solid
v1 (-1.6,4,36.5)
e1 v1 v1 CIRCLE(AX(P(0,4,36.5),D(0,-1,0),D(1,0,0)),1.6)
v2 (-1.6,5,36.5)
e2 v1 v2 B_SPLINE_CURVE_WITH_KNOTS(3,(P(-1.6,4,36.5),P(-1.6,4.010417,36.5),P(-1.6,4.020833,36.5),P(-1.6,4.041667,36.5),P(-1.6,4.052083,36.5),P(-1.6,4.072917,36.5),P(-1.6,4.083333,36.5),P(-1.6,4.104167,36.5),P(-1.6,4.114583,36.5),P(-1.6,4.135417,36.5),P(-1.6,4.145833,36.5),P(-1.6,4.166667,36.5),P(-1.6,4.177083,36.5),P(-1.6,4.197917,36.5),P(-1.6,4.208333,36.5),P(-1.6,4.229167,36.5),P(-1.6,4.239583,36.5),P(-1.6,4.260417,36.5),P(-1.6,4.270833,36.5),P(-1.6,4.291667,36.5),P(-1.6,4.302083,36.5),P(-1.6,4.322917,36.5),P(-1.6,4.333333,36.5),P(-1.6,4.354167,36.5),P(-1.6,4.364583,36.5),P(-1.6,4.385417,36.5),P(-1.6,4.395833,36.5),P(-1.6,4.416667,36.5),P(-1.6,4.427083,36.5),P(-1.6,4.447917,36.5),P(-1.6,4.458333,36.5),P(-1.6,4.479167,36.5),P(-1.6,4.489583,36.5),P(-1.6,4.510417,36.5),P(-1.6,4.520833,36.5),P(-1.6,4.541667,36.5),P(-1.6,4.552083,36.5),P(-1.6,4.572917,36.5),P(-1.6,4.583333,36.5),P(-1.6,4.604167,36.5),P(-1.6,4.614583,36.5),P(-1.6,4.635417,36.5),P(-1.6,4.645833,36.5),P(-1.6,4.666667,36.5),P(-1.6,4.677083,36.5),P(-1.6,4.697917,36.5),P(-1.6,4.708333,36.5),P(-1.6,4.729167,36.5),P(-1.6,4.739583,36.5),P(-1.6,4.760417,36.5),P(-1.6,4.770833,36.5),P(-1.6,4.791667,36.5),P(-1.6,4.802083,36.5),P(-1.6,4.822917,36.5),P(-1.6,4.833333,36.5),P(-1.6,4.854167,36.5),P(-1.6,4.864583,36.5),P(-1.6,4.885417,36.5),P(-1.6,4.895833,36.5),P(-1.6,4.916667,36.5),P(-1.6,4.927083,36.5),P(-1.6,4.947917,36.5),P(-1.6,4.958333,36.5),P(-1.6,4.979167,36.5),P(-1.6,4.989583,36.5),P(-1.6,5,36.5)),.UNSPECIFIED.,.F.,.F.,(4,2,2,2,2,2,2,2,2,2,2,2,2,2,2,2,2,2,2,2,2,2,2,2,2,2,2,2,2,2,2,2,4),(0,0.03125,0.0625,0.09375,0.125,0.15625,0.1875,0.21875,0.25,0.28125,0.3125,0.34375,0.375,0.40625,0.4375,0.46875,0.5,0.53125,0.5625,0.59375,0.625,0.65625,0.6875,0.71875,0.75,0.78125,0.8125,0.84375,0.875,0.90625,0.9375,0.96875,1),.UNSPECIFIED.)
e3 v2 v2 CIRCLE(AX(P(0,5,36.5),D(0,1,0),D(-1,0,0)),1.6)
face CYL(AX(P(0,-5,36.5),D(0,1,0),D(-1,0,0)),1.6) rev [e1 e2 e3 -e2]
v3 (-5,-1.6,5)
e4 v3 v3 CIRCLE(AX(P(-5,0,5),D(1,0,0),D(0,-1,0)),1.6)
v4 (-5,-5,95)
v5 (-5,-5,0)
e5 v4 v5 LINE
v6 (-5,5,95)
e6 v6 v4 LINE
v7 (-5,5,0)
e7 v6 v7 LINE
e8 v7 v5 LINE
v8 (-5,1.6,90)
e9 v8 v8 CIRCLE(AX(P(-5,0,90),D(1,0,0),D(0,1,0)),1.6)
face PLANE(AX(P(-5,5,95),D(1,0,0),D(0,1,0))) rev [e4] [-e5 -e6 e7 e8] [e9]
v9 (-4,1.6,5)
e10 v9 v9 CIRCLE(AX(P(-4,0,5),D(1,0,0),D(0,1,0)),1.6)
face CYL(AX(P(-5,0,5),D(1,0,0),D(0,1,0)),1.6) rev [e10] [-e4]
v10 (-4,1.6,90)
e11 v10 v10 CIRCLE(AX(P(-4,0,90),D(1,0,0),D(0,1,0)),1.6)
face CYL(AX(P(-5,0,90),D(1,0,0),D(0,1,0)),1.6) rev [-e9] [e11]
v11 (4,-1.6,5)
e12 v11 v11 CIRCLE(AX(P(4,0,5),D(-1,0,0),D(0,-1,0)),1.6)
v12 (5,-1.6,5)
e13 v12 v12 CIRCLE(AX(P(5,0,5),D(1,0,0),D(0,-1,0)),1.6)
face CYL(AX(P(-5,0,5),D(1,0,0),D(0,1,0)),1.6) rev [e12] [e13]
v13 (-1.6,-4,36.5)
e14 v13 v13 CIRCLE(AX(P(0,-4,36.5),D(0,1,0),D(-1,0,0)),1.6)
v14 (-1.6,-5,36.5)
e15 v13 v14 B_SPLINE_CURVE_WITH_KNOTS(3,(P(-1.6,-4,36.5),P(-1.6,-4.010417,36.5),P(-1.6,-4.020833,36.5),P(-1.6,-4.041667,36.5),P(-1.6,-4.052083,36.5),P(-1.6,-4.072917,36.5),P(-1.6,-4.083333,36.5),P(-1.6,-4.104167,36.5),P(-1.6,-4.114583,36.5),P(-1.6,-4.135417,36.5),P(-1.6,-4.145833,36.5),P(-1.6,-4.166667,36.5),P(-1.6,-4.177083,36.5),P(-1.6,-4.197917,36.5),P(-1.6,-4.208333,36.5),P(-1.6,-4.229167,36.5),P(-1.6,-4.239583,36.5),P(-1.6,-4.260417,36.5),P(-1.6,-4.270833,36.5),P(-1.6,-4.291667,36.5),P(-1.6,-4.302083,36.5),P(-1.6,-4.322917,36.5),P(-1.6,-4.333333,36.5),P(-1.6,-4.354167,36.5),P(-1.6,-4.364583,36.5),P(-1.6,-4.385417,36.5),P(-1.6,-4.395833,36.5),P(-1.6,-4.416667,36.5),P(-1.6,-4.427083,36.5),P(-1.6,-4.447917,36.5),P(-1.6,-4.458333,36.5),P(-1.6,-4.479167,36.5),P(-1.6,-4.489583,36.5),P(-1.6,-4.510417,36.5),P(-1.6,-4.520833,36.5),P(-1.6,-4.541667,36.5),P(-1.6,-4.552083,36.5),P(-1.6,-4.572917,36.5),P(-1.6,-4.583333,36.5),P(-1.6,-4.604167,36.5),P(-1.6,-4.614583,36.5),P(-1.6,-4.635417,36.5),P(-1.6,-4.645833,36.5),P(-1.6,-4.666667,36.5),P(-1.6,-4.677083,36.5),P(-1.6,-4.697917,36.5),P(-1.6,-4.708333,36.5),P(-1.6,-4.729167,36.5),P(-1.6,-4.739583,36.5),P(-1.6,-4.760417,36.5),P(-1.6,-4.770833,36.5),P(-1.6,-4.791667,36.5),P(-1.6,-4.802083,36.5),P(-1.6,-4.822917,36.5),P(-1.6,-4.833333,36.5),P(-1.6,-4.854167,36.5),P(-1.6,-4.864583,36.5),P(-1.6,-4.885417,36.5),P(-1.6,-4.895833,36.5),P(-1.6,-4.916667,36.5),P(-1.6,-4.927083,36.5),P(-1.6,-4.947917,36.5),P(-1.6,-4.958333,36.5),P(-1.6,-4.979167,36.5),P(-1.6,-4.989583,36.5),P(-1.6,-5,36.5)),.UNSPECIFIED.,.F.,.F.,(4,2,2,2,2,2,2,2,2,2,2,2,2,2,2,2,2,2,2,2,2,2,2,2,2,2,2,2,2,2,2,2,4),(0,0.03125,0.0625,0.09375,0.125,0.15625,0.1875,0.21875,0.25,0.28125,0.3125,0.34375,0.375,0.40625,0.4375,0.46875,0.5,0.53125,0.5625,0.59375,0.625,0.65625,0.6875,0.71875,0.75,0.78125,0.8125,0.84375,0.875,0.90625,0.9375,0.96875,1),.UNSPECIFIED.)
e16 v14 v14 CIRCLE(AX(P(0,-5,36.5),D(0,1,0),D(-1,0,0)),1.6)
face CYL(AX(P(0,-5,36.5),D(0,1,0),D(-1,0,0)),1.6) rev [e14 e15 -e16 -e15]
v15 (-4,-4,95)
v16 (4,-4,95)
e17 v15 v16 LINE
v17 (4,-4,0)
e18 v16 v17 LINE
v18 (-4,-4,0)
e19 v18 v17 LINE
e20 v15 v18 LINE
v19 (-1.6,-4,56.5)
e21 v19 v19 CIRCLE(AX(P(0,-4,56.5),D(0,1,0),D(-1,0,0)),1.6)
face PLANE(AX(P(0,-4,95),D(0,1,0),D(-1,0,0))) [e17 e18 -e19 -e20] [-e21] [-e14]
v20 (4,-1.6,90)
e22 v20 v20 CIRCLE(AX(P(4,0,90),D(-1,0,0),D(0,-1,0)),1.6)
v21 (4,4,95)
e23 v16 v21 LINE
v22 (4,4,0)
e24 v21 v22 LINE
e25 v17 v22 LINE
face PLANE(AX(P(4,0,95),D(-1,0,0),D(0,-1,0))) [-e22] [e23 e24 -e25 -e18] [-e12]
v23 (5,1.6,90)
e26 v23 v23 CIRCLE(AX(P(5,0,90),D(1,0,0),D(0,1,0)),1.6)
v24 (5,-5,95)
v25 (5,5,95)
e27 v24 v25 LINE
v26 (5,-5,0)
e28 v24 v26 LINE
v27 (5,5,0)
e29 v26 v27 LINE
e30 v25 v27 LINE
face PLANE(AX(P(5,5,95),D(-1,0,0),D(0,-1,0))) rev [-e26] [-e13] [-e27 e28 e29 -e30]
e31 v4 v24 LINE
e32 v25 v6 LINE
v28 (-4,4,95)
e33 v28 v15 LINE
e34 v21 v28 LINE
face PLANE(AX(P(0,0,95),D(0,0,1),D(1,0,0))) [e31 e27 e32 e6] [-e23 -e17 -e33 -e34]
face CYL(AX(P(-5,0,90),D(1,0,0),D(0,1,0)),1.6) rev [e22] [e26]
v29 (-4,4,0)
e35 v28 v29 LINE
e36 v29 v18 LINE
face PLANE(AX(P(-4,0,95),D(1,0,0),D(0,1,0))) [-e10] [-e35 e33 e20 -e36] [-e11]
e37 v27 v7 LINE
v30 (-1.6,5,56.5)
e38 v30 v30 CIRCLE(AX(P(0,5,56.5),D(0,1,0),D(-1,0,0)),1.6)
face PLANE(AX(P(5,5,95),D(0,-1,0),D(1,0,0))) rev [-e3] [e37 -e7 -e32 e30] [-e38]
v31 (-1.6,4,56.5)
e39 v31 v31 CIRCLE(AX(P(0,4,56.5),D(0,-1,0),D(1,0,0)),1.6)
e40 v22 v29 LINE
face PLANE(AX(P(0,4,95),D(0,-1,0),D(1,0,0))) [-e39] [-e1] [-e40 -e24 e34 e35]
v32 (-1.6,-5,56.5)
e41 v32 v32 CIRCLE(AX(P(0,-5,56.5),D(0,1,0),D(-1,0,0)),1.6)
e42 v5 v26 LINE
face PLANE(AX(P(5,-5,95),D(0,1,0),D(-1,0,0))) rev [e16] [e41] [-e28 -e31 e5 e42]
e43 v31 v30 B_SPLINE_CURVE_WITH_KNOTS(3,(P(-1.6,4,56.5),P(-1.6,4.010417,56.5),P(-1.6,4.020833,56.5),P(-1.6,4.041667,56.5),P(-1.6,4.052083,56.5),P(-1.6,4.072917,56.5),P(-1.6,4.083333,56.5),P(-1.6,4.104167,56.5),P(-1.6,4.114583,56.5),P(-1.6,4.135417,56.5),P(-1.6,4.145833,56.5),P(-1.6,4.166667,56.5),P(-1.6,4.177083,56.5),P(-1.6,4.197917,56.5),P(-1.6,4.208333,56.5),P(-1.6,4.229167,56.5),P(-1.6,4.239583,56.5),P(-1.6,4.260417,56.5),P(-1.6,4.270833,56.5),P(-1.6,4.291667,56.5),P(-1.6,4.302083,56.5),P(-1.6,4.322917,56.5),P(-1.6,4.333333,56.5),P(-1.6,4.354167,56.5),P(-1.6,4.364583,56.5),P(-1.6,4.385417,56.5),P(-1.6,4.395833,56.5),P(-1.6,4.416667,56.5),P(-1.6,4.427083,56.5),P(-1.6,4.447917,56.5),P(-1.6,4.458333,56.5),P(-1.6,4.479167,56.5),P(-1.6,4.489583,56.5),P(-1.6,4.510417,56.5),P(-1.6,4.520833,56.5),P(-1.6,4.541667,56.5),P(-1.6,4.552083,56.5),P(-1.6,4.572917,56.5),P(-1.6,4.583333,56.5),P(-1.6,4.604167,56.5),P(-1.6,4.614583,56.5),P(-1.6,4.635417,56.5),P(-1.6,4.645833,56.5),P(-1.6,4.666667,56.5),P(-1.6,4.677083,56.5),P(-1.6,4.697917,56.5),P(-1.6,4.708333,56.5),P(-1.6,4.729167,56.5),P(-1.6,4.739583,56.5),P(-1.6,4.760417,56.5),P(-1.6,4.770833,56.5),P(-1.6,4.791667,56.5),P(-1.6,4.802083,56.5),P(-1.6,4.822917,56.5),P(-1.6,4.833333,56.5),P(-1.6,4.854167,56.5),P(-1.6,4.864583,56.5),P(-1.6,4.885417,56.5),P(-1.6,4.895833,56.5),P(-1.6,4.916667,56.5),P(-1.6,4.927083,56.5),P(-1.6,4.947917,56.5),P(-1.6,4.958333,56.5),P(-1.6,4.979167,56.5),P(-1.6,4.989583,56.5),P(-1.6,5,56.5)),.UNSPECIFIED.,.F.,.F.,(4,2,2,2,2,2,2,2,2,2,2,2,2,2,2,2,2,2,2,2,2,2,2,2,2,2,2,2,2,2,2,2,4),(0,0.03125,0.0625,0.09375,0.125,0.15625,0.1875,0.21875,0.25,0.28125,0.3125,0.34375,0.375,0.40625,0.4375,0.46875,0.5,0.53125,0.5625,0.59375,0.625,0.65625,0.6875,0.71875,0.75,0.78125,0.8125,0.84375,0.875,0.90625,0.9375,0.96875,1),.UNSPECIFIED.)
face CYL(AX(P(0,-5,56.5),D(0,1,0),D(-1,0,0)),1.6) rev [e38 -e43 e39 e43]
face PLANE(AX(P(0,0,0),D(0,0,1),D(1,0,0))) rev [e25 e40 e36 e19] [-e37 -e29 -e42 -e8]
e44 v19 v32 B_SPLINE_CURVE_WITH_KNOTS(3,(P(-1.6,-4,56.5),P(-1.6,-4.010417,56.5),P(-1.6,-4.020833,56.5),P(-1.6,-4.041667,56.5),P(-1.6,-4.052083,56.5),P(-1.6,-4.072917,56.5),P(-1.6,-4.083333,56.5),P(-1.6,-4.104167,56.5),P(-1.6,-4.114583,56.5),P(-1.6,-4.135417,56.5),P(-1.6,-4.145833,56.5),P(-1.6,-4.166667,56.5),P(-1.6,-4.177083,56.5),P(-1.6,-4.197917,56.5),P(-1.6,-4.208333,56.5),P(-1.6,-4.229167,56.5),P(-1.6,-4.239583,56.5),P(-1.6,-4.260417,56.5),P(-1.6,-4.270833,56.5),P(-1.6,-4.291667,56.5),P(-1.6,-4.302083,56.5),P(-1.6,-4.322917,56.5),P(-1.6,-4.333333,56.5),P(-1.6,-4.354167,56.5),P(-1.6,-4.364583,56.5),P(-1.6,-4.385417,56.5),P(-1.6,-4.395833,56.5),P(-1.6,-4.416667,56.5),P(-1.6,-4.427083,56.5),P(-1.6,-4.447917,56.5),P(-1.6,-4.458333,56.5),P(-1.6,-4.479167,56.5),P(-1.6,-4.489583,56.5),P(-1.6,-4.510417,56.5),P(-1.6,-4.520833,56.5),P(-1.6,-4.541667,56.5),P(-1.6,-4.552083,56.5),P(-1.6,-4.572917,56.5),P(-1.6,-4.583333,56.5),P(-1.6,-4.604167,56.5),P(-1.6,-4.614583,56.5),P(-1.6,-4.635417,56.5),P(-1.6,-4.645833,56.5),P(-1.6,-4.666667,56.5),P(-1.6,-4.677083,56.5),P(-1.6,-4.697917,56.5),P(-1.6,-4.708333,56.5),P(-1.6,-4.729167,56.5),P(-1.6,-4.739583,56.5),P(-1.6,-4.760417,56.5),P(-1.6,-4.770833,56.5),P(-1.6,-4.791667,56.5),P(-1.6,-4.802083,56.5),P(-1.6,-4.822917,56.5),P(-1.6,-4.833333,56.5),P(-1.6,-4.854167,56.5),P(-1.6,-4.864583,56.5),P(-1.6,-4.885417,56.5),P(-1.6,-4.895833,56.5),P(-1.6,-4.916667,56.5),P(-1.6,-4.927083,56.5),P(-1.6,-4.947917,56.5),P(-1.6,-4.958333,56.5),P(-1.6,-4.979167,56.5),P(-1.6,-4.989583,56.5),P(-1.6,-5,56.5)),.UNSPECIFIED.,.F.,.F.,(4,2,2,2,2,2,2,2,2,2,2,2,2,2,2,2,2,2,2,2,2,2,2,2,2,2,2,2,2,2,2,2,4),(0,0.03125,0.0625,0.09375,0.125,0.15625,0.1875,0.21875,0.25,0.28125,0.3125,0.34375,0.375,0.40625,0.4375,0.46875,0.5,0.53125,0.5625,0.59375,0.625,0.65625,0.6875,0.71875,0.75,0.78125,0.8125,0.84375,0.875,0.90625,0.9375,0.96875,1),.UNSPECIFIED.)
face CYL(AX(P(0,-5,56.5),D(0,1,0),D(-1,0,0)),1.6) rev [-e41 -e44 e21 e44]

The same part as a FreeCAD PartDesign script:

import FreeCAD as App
import Part
import Sketcher

doc = App.newDocument("Part")
params = doc.addObject("Spreadsheet::Sheet", "Params")
for row, (alias, value) in enumerate([
    ("sketch1_width", "10 mm"),
    ("sketch1_width2", "8 mm"),
    ("pad1_length", "95 mm"),
    ("sketch2_diameter", "3.2 mm"),
    ("sketch3_diameter", "3.2 mm"),
], start=1):
    params.set(f"A{row}", alias)
    params.set(f"B{row}", "=" + value)
    params.setAlias(f"B{row}", alias)

body = doc.addObject("PartDesign::Body", "Body")

# Sketch on XY plane
sketch1 = body.newObject("Sketcher::SketchObject", "Sketch")
sketch1.AttachmentSupport = (doc.getObject("XY_Plane"), [""])
sketch1.MapMode = "FlatFace"
sketch1.addGeometry([
    Part.LineSegment(App.Vector(-5, 5, 0), App.Vector(-5, -5, 0)),  # 0
    Part.LineSegment(App.Vector(-5, -5, 0), App.Vector(5, -5, 0)),  # 1
    Part.LineSegment(App.Vector(5, -5, 0), App.Vector(5, 5, 0)),  # 2
    Part.LineSegment(App.Vector(5, 5, 0), App.Vector(-5, 5, 0)),  # 3
    Part.LineSegment(App.Vector(4, -4, 0), App.Vector(-4, -4, 0)),  # 4
    Part.LineSegment(App.Vector(-4, -4, 0), App.Vector(-4, 4, 0)),  # 5
    Part.LineSegment(App.Vector(-4, 4, 0), App.Vector(4, 4, 0)),  # 6
    Part.LineSegment(App.Vector(4, 4, 0), App.Vector(4, -4, 0)),  # 7
], False)
sketch1.addConstraint([
    Sketcher.Constraint("Coincident", 0, 2, 1, 1),
    Sketcher.Constraint("Coincident", 1, 2, 2, 1),
    Sketcher.Constraint("Coincident", 2, 2, 3, 1),
    Sketcher.Constraint("Coincident", 3, 2, 0, 1),
    Sketcher.Constraint("Coincident", 4, 2, 5, 1),
    Sketcher.Constraint("Coincident", 5, 2, 6, 1),
    Sketcher.Constraint("Coincident", 6, 2, 7, 1),
    Sketcher.Constraint("Coincident", 7, 2, 4, 1),
    Sketcher.Constraint("Vertical", 0),
    Sketcher.Constraint("Horizontal", 1),
    Sketcher.Constraint("Vertical", 2),
    Sketcher.Constraint("Horizontal", 3),
    Sketcher.Constraint("Horizontal", 4),
    Sketcher.Constraint("Vertical", 5),
    Sketcher.Constraint("Horizontal", 6),
    Sketcher.Constraint("Vertical", 7),
    Sketcher.Constraint("Symmetric", 0, 2, 2, 2, -1, 1),
    Sketcher.Constraint("Symmetric", 4, 2, 6, 2, -1, 1),
    Sketcher.Constraint("Equal", 3, 0),
    Sketcher.Constraint("Equal", 6, 5),
    Sketcher.Constraint("DistanceX", 1, 1, 1, 2, 10.0),
    Sketcher.Constraint("DistanceX", 4, 2, 4, 1, 8.0),
])
sketch1.setExpression("Constraints[20]", "Params.sketch1_width")
sketch1.setExpression("Constraints[21]", "Params.sketch1_width2")
pad1 = body.newObject("PartDesign::Pad", "Pad")
pad1.Profile = sketch1
pad1.setExpression("Length", "Params.pad1_length")

# Sketch on XZ plane
sketch2 = body.newObject("Sketcher::SketchObject", "Sketch001")
sketch2.AttachmentSupport = (doc.getObject("XZ_Plane"), [""])
sketch2.MapMode = "FlatFace"
sketch2.AttachmentOffset = App.Placement(App.Vector(0, 0, -5), App.Rotation())
sketch2.addGeometry([
    Part.Circle(App.Vector(0, 56.5, 0), App.Vector(0, 0, 1), 1.6),
    Part.Circle(App.Vector(0, 36.5, 0), App.Vector(0, 0, 1), 1.6),
], False)
sketch2.addConstraint([
    Sketcher.Constraint("Equal", 0, 1),
    Sketcher.Constraint("PointOnObject", 0, 3, -2),
    Sketcher.Constraint("PointOnObject", 1, 3, -2),
    Sketcher.Constraint("Diameter", 0, 3.2),
    Sketcher.Constraint("DistanceY", 1, 3, 0, 3, 20.0),
    Sketcher.Constraint("DistanceY", -1, 1, 0, 3, 56.5),
])
sketch2.setExpression("Constraints[3]", "Params.sketch2_diameter")
pocket1 = body.newObject("PartDesign::Pocket", "Pocket")
pocket1.Profile = sketch2
pocket1.Type = "ThroughAll"
pocket1.Reversed = True

# Sketch on YZ plane
sketch3 = body.newObject("Sketcher::SketchObject", "Sketch002")
sketch3.AttachmentSupport = (doc.getObject("YZ_Plane"), [""])
sketch3.MapMode = "FlatFace"
sketch3.AttachmentOffset = App.Placement(App.Vector(0, 0, 5), App.Rotation())
sketch3.addGeometry([
    Part.Circle(App.Vector(0, 90, 0), App.Vector(0, 0, 1), 1.6),
    Part.Circle(App.Vector(0, 5, 0), App.Vector(0, 0, 1), 1.6),
], False)
sketch3.addConstraint([
    Sketcher.Constraint("Equal", 0, 1),
    Sketcher.Constraint("PointOnObject", 0, 3, -2),
    Sketcher.Constraint("PointOnObject", 1, 3, -2),
    Sketcher.Constraint("Diameter", 0, 3.2),
    Sketcher.Constraint("DistanceY", -1, 1, 0, 3, 90.0),
    Sketcher.Constraint("DistanceY", -1, 1, 1, 3, 5.0),
])
sketch3.setExpression("Constraints[3]", "Params.sketch3_diameter")
pocket2 = body.newObject("PartDesign::Pocket", "Pocket001")
pocket2.Profile = sketch3
pocket2.Type = "ThroughAll"

doc.recompute()
